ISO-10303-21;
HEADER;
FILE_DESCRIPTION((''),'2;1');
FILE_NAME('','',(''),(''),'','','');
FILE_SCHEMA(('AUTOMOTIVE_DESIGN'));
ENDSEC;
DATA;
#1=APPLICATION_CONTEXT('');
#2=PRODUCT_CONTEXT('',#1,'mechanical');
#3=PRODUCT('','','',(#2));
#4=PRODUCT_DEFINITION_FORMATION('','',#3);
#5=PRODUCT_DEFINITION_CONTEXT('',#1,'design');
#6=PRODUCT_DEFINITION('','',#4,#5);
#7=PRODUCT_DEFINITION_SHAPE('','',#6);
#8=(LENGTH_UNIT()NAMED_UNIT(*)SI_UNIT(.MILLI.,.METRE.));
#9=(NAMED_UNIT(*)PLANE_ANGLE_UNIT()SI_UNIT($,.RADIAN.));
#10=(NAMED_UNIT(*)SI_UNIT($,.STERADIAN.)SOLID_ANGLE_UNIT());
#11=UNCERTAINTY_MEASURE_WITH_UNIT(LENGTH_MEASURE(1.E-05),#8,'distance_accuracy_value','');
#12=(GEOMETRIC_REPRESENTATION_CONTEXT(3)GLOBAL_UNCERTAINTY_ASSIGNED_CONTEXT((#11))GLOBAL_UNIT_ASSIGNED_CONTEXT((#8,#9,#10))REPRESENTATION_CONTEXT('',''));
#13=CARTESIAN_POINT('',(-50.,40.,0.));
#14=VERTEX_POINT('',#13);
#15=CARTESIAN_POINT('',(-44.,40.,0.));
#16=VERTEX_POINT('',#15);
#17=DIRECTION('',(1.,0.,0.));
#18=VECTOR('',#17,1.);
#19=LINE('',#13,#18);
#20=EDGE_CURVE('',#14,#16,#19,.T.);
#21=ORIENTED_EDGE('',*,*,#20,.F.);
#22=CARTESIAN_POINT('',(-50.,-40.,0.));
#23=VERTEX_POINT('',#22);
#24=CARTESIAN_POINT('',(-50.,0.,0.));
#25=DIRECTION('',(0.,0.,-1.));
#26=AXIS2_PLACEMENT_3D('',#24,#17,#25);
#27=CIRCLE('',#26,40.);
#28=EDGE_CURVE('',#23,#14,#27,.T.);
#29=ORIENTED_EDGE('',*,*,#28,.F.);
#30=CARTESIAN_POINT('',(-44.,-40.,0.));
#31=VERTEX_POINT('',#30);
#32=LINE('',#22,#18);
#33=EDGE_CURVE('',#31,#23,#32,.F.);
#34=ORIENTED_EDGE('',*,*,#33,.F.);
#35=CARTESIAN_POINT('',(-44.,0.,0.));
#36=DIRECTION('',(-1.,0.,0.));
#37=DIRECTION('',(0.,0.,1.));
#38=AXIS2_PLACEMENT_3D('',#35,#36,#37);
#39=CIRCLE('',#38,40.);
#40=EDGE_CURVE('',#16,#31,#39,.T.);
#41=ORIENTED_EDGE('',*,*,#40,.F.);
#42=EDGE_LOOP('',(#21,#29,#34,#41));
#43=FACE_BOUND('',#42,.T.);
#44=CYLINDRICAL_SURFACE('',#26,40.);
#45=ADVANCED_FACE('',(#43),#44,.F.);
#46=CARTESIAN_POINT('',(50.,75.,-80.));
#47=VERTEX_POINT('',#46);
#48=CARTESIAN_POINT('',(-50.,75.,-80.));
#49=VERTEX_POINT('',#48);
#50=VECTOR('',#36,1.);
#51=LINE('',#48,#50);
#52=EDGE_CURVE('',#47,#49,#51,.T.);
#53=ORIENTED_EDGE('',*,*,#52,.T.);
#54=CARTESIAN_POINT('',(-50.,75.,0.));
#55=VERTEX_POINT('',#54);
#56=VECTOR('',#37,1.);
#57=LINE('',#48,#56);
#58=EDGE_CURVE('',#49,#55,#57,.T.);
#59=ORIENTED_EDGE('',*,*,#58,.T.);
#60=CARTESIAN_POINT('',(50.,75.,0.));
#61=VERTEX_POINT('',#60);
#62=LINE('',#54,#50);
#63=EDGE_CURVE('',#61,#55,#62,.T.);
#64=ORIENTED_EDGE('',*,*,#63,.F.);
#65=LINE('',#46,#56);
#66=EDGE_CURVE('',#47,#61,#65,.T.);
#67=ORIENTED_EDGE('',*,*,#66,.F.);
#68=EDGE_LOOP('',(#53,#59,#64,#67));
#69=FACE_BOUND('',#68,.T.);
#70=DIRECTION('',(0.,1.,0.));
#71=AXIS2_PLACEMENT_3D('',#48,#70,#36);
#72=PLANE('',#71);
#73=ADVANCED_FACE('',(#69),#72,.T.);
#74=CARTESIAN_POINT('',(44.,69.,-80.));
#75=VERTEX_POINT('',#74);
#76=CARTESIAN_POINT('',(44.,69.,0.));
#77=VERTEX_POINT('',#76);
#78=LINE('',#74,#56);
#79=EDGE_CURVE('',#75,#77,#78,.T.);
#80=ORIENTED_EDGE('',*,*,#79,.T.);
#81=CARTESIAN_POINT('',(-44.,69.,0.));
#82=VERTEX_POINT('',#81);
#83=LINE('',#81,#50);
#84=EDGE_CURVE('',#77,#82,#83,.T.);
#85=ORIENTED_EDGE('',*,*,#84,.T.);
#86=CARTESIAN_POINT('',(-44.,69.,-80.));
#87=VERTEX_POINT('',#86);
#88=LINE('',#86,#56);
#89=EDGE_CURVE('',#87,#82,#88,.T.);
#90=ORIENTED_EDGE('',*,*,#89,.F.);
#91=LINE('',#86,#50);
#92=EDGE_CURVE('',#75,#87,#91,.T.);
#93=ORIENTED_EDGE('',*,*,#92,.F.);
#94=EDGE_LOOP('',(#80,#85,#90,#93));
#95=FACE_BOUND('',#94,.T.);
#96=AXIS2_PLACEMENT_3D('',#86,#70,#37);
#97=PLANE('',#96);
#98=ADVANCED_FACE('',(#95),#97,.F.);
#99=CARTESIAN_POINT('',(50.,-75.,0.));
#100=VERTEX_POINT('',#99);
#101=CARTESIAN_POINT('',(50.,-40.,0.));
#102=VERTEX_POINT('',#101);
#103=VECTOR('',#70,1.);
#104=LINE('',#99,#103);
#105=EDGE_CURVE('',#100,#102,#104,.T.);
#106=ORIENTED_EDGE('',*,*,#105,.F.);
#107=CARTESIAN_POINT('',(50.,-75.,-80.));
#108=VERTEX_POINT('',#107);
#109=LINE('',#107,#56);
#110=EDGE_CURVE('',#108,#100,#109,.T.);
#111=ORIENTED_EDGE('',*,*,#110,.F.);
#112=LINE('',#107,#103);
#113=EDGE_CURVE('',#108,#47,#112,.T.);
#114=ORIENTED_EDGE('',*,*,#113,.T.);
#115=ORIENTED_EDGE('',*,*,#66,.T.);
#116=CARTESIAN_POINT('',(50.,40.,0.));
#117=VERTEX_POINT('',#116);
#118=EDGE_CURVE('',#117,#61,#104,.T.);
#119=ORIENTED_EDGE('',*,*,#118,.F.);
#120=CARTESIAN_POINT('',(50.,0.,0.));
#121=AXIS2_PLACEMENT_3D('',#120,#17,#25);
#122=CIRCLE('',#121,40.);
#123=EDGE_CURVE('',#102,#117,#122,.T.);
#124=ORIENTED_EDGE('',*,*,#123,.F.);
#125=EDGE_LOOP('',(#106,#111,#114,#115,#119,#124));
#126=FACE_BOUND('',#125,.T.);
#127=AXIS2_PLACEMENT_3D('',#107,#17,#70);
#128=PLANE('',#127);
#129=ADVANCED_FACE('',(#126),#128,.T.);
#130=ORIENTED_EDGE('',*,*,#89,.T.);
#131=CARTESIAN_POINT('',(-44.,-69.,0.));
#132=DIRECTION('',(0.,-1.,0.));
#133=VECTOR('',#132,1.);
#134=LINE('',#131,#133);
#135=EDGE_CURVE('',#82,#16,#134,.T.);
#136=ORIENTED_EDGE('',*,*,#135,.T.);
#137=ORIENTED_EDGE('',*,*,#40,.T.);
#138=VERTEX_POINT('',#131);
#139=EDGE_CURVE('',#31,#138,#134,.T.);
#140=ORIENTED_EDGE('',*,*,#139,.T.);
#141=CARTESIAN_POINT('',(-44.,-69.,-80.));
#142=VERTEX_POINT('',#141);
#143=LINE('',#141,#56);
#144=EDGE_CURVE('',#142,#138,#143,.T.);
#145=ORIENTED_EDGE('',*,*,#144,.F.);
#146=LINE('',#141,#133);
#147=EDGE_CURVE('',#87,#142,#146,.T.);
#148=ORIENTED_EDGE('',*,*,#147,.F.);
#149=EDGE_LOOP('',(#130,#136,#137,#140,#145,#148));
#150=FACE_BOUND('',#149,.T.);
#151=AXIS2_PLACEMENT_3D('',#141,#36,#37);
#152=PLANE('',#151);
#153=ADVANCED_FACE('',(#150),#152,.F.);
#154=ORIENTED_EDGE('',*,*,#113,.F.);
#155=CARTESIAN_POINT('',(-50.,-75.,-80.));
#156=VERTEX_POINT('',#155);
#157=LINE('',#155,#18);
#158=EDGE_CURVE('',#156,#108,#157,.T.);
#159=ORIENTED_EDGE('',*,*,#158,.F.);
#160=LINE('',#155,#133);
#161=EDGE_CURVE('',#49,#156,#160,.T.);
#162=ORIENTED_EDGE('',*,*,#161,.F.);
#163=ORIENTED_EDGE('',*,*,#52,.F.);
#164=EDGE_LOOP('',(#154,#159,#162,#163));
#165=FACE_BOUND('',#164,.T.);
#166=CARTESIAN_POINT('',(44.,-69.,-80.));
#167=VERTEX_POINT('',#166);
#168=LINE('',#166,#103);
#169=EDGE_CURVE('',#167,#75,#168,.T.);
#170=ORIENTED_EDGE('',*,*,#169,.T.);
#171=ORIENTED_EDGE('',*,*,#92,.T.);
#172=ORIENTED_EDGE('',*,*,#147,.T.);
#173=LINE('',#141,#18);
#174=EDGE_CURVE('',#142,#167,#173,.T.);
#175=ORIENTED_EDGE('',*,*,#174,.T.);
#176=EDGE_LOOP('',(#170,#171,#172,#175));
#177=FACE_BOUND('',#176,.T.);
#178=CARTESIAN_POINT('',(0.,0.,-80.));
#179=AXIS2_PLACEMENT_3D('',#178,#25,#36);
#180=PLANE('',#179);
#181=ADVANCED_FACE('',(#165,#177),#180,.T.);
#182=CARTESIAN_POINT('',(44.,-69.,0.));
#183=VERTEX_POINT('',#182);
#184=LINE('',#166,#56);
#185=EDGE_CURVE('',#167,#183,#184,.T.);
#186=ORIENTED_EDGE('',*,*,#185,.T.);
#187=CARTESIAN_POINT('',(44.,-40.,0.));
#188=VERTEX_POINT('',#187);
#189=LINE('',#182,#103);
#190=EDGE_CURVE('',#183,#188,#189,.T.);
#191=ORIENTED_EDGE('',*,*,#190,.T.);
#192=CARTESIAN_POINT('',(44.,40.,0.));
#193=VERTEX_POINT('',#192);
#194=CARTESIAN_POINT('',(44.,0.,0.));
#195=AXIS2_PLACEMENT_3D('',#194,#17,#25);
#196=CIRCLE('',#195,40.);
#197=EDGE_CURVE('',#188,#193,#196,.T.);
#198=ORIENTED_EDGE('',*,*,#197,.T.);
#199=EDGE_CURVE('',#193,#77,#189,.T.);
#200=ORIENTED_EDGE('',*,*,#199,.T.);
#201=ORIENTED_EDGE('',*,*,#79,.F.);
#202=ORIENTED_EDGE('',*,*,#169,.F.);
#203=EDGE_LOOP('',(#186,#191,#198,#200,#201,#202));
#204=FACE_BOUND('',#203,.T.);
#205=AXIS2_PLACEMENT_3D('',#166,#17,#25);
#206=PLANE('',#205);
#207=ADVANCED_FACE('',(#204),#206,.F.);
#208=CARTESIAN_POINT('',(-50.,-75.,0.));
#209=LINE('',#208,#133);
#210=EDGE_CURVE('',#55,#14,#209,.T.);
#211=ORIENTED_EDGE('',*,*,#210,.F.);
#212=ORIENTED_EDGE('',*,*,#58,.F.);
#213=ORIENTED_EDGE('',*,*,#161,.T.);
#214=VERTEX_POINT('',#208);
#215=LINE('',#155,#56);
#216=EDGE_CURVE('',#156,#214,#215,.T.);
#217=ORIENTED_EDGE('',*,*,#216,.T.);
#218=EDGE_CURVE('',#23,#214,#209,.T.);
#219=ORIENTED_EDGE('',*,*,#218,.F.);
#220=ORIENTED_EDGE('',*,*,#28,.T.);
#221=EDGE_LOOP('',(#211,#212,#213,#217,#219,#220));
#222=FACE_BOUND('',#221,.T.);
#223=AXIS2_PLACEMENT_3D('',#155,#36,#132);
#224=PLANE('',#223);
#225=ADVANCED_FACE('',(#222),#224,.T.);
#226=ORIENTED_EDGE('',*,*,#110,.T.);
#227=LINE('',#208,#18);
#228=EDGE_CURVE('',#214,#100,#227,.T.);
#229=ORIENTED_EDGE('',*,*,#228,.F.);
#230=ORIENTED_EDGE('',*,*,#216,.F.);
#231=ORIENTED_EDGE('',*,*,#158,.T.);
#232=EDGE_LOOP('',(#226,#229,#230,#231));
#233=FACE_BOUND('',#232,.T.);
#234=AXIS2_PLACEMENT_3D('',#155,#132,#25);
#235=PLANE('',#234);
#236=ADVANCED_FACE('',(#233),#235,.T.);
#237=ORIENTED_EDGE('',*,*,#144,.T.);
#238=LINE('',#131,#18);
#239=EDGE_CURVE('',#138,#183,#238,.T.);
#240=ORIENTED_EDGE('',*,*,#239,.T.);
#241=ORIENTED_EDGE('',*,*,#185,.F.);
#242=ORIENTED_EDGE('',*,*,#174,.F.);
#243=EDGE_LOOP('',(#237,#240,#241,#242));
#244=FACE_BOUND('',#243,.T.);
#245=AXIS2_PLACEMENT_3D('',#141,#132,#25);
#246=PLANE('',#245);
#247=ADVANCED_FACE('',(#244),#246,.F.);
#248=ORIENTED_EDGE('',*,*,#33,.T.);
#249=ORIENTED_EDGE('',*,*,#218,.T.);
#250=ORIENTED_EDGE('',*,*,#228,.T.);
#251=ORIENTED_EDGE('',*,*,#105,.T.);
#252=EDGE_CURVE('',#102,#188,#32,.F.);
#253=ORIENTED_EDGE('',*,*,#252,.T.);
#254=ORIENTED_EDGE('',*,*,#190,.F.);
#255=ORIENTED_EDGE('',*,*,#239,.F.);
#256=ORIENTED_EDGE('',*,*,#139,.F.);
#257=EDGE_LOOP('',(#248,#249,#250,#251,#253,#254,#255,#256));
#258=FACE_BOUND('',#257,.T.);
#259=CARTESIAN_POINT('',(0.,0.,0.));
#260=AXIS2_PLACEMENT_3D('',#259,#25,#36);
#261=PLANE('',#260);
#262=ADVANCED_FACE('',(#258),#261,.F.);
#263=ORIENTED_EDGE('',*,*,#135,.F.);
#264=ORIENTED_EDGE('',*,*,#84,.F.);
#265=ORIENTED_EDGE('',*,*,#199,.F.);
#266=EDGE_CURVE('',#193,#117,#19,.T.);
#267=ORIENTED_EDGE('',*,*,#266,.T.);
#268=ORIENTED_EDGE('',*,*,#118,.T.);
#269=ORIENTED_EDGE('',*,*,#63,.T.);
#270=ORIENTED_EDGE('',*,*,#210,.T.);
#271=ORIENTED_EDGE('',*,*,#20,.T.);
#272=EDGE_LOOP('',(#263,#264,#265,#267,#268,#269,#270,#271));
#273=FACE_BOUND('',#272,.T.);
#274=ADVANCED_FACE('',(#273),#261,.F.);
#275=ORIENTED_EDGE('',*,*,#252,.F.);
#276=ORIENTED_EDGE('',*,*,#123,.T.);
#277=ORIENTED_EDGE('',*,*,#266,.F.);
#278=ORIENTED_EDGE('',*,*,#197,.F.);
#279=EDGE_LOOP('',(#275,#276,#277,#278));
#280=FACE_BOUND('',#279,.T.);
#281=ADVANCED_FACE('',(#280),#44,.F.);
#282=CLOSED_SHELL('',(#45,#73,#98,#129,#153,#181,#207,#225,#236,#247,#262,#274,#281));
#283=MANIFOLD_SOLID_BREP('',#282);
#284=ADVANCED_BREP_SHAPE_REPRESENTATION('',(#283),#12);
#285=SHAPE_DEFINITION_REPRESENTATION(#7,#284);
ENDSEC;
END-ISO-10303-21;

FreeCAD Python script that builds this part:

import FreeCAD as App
import Part
import Sketcher
from FreeCAD import Vector

doc = App.newDocument("Part")
body = doc.addObject("PartDesign::Body", "Body")

# Sketch on XY plane
sketch1 = body.newObject("Sketcher::SketchObject", "Sketch")
sketch1.AttachmentSupport = (doc.getObject("XY_Plane"), [""])
sketch1.MapMode = "FlatFace"
sketch1.addGeometry(Part.LineSegment(Vector(-50, 75, 0), Vector(-50, -75, 0)), False)
sketch1.addGeometry(Part.LineSegment(Vector(-50, -75, 0), Vector(50, -75, 0)), False)
sketch1.addGeometry(Part.LineSegment(Vector(50, -75, 0), Vector(50, 75, 0)), False)
sketch1.addGeometry(Part.LineSegment(Vector(50, 75, 0), Vector(-50, 75, 0)), False)
sketch1.addGeometry(Part.LineSegment(Vector(44, -69, 0), Vector(-44, -69, 0)), False)
sketch1.addGeometry(Part.LineSegment(Vector(-44, -69, 0), Vector(-44, 69, 0)), False)
sketch1.addGeometry(Part.LineSegment(Vector(-44, 69, 0), Vector(44, 69, 0)), False)
sketch1.addGeometry(Part.LineSegment(Vector(44, 69, 0), Vector(44, -69, 0)), False)
sketch1.addConstraint(Sketcher.Constraint("Coincident", 0, 2, 1, 1))
sketch1.addConstraint(Sketcher.Constraint("Coincident", 1, 2, 2, 1))
sketch1.addConstraint(Sketcher.Constraint("Coincident", 2, 2, 3, 1))
sketch1.addConstraint(Sketcher.Constraint("Coincident", 3, 2, 0, 1))
sketch1.addConstraint(Sketcher.Constraint("Coincident", 4, 2, 5, 1))
sketch1.addConstraint(Sketcher.Constraint("Coincident", 5, 2, 6, 1))
sketch1.addConstraint(Sketcher.Constraint("Coincident", 6, 2, 7, 1))
sketch1.addConstraint(Sketcher.Constraint("Coincident", 7, 2, 4, 1))
sketch1.addConstraint(Sketcher.Constraint("Vertical", 0))
sketch1.addConstraint(Sketcher.Constraint("Horizontal", 1))
sketch1.addConstraint(Sketcher.Constraint("Vertical", 2))
sketch1.addConstraint(Sketcher.Constraint("Horizontal", 3))
sketch1.addConstraint(Sketcher.Constraint("Horizontal", 4))
sketch1.addConstraint(Sketcher.Constraint("Vertical", 5))
sketch1.addConstraint(Sketcher.Constraint("Horizontal", 6))
sketch1.addConstraint(Sketcher.Constraint("Vertical", 7))
sketch1.addConstraint(Sketcher.Constraint("Symmetric", 0, 2, 2, 2, -1, 1))
sketch1.addConstraint(Sketcher.Constraint("Symmetric", 4, 2, 6, 2, -1, 1))
sketch1.addConstraint(Sketcher.Constraint("DistanceX", 1, 1, 1, 2, 100.0))
sketch1.addConstraint(Sketcher.Constraint("DistanceX", 4, 2, 4, 1, 88.0))
sketch1.addConstraint(Sketcher.Constraint("DistanceY", 0, 2, 0, 1, 150.0))
sketch1.addConstraint(Sketcher.Constraint("DistanceY", 5, 1, 5, 2, 138.0))
pad1 = body.newObject("PartDesign::Pad", "Pad")
pad1.Profile = sketch1
pad1.Length = 80
pad1.Reversed = True

# Sketch on YZ plane
sketch2 = body.newObject("Sketcher::SketchObject", "Sketch001")
sketch2.AttachmentSupport = (doc.getObject("YZ_Plane"), [""])
sketch2.MapMode = "FlatFace"
sketch2.addGeometry(Part.Circle(Vector(0, 0, 0), Vector(0, 0, 1), 40), False)
sketch2.addConstraint(Sketcher.Constraint("Coincident", 0, 3, -1, 1))
sketch2.addConstraint(Sketcher.Constraint("Diameter", 0, 80.0))
pocket1 = body.newObject("PartDesign::Pocket", "Pocket")
pocket1.Profile = sketch2
pocket1.Type = "ThroughAll"
pocket1.Midplane = True

doc.recompute()
